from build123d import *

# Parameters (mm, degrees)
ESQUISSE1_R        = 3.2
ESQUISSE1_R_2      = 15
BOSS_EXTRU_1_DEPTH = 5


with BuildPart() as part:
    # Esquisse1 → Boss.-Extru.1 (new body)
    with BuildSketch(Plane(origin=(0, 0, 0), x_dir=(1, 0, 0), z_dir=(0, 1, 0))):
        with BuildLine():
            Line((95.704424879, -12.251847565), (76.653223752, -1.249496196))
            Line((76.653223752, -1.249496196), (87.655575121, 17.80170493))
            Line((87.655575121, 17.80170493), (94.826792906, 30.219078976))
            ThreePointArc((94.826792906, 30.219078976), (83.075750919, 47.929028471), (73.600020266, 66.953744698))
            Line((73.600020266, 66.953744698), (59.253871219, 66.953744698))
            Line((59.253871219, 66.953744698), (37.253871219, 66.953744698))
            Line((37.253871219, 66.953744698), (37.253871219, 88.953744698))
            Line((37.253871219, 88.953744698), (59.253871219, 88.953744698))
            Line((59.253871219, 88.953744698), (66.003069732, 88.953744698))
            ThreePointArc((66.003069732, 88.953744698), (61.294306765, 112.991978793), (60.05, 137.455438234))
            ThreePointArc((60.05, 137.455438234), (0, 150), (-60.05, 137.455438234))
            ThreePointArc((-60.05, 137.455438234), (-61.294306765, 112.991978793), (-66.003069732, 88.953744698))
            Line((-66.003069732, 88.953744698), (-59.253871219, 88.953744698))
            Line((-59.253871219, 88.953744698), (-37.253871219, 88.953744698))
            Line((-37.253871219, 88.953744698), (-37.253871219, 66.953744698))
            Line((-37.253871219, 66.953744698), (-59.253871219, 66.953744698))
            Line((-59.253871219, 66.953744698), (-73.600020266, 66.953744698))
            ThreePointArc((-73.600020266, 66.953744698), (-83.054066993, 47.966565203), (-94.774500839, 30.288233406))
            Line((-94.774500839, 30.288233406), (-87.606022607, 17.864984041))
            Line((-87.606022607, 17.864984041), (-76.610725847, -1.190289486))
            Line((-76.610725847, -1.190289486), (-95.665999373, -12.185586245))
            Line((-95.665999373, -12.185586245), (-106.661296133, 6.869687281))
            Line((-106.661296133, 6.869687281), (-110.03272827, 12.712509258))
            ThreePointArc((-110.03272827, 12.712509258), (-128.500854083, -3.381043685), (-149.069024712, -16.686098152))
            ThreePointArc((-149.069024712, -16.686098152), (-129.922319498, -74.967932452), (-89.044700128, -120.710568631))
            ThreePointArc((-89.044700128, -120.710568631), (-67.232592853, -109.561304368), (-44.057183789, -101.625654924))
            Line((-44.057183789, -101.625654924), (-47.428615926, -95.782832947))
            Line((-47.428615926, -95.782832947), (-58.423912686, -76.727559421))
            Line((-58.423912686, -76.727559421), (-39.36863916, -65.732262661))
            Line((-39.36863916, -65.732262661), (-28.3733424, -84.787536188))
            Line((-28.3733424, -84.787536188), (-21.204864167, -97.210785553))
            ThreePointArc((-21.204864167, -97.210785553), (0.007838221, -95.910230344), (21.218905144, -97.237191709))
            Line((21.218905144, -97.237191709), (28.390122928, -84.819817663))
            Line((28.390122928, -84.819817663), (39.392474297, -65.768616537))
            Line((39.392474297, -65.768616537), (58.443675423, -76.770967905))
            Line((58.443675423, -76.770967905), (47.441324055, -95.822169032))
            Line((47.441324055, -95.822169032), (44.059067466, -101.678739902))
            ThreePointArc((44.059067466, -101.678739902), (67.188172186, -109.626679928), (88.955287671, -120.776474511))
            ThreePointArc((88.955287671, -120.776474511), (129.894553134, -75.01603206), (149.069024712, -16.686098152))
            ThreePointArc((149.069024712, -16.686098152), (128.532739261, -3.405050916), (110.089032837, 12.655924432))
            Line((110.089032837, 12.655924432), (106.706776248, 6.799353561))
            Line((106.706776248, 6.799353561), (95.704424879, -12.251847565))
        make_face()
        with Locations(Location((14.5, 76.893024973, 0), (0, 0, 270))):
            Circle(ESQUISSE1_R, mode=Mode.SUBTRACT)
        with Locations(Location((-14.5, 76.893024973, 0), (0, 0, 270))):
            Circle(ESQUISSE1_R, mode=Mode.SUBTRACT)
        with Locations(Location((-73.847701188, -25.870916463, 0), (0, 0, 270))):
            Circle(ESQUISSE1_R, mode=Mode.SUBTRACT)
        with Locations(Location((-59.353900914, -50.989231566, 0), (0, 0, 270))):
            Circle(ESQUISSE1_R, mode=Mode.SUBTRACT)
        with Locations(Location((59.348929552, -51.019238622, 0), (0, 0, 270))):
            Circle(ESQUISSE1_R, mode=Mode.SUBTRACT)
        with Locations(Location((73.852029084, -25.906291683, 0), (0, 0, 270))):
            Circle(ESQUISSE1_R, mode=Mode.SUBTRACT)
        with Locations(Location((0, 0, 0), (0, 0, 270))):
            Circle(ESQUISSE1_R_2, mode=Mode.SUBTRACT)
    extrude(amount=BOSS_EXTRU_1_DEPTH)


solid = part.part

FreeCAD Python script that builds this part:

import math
import FreeCAD as App
import Part
import Sketcher

doc = App.newDocument("Part")
body = doc.addObject("PartDesign::Body", "Body")

# Sketch on XZ plane
sketch1 = doc.addObject("Sketcher::SketchObject", "Sketch")
body.addObject(sketch1)
sketch1.AttachmentSupport = (doc.XZ_Plane, [""])
sketch1.MapMode = "FlatFace"
sketch1.addGeometry([
    Part.LineSegment(App.Vector(95.704425, 12.251848, 0), App.Vector(76.653224, 1.249496, 0)),  # 0
    Part.LineSegment(App.Vector(76.653224, 1.249496, 0), App.Vector(87.655575, -17.801705, 0)),  # 1
    Part.LineSegment(App.Vector(87.655575, -17.801705, 0), App.Vector(94.826793, -30.219079, 0)),  # 2
    Part.ArcOfCircle(Part.Circle(App.Vector(231.913922, -133.933731, 0), App.Vector(0, 0, 1), 171.9), math.radians(142.890304), math.radians(157.067584)),  # 3
    Part.LineSegment(App.Vector(73.60002, -66.953745, 0), App.Vector(37.253871, -66.953745, 0)),  # 4
    Part.LineSegment(App.Vector(37.253871, -66.953745, 0), App.Vector(37.253871, -88.953745, 0)),  # 5
    Part.LineSegment(App.Vector(37.253871, -88.953745, 0), App.Vector(66.00307, -88.953745, 0)),  # 6
    Part.ArcOfCircle(Part.Circle(App.Vector(231.913922, -133.933731, 0), App.Vector(0, 0, 1), 171.9), math.radians(164.831198), math.radians(181.173898)),  # 7
    Part.ArcOfCircle(Part.Circle(App.Vector(0, 0, 0), App.Vector(0, 0, 1), 150), math.radians(-113.599018), math.radians(-66.400982)),  # 8
    Part.ArcOfCircle(Part.Circle(App.Vector(-231.913922, -133.933731, 0), App.Vector(0, 0, 1), 171.9), math.radians(-1.173898), math.radians(15.168802)),  # 9
    Part.LineSegment(App.Vector(-66.00307, -88.953745, 0), App.Vector(-37.253871, -88.953745, 0)),  # 10
    Part.LineSegment(App.Vector(-37.253871, -88.953745, 0), App.Vector(-37.253871, -66.953745, 0)),  # 11
    Part.LineSegment(App.Vector(-37.253871, -66.953745, 0), App.Vector(-73.60002, -66.953745, 0)),  # 12
    Part.ArcOfCircle(Part.Circle(App.Vector(-231.913922, -133.933731, 0), App.Vector(0, 0, 1), 171.9), math.radians(22.932416), math.radians(37.080798)),  # 13
    Part.LineSegment(App.Vector(-94.774501, -30.288233, 0), App.Vector(-87.606023, -17.864984, 0)),  # 14
    Part.LineSegment(App.Vector(-87.606023, -17.864984, 0), App.Vector(-76.610726, 1.190289, 0)),  # 15
    Part.LineSegment(App.Vector(-76.610726, 1.190289, 0), App.Vector(-95.665999, 12.185586, 0)),  # 16
    Part.LineSegment(App.Vector(-95.665999, 12.185586, 0), App.Vector(-106.661296, -6.869687, 0)),  # 17
    Part.LineSegment(App.Vector(-106.661296, -6.869687, 0), App.Vector(-110.032728, -12.712509, 0)),  # 18
    Part.ArcOfCircle(Part.Circle(App.Vector(-231.913922, -133.933731, 0), App.Vector(0, 0, 1), 171.9), math.radians(44.844455), math.radians(61.188041)),  # 19
    Part.ArcOfCircle(Part.Circle(App.Vector(0, 0, 0), App.Vector(0, 0, 1), 150), math.radians(126.415124), math.radians(173.613161)),  # 20
    Part.ArcOfCircle(Part.Circle(App.Vector(-0.099159, 267.810197, 0), App.Vector(0, 0, 1), 171.9), math.radians(-121.159755), math.radians(-104.816169)),  # 21
    Part.LineSegment(App.Vector(-44.057184, 101.625655, 0), App.Vector(-47.428616, 95.782833, 0)),  # 22
    Part.LineSegment(App.Vector(-47.428616, 95.782833, 0), App.Vector(-58.423913, 76.727559, 0)),  # 23
    Part.LineSegment(App.Vector(-58.423913, 76.727559, 0), App.Vector(-39.368639, 65.732263, 0)),  # 24
    Part.LineSegment(App.Vector(-39.368639, 65.732263, 0), App.Vector(-28.373342, 84.787536, 0)),  # 25
    Part.LineSegment(App.Vector(-28.373342, 84.787536, 0), App.Vector(-21.204864, 97.210786, 0)),  # 26
    Part.ArcOfCircle(Part.Circle(App.Vector(-0.099159, 267.810197, 0), App.Vector(0, 0, 1), 171.9), math.radians(-97.052512), math.radians(-82.876162)),  # 27
    Part.LineSegment(App.Vector(21.218905, 97.237192, 0), App.Vector(28.390123, 84.819818, 0)),  # 28
    Part.LineSegment(App.Vector(28.390123, 84.819818, 0), App.Vector(39.392474, 65.768617, 0)),  # 29
    Part.LineSegment(App.Vector(39.392474, 65.768617, 0), App.Vector(58.443675, 76.770968, 0)),  # 30
    Part.LineSegment(App.Vector(58.443675, 76.770968, 0), App.Vector(47.441324, 95.822169, 0)),  # 31
    Part.LineSegment(App.Vector(47.441324, 95.822169, 0), App.Vector(44.059067, 101.67874, 0)),  # 32
    Part.ArcOfCircle(Part.Circle(App.Vector(-0.099159, 267.810197, 0), App.Vector(0, 0, 1), 171.9), math.radians(-75.114796), math.radians(-58.797816)),  # 33
    Part.ArcOfCircle(Part.Circle(App.Vector(0, 0, 0), App.Vector(0, 0, 1), 150), math.radians(6.386839), math.radians(53.627304)),  # 34
    Part.ArcOfCircle(Part.Circle(App.Vector(231.913922, -133.933731, 0), App.Vector(0, 0, 1), 171.9), math.radians(118.811959), math.radians(135.128939)),  # 35
    Part.LineSegment(App.Vector(110.089033, -12.655924, 0), App.Vector(106.706776, -6.799354, 0)),  # 36
    Part.LineSegment(App.Vector(106.706776, -6.799354, 0), App.Vector(95.704425, 12.251848, 0)),  # 37
    Part.Circle(App.Vector(-59.353901, 50.989232, 0), App.Vector(0, 0, 1), 3.2),  # 38
    Part.Circle(App.Vector(-73.847701, 25.870916, 0), App.Vector(0, 0, 1), 3.2),  # 39
    Part.Circle(App.Vector(0, 0, 0), App.Vector(0, 0, 1), 15),  # 40
    Part.Circle(App.Vector(59.34893, 51.019239, 0), App.Vector(0, 0, 1), 3.2),  # 41
    Part.Circle(App.Vector(73.852029, 25.906292, 0), App.Vector(0, 0, 1), 3.2),  # 42
    Part.Circle(App.Vector(-14.5, -76.893025, 0), App.Vector(0, 0, 1), 3.2),  # 43
    Part.Circle(App.Vector(14.5, -76.893025, 0), App.Vector(0, 0, 1), 3.2),  # 44
], False)
sketch1.addConstraint([
    Sketcher.Constraint("Coincident", 0, 2, 1, 1),
    Sketcher.Constraint("Coincident", 1, 2, 2, 1),
    Sketcher.Constraint("Coincident", 2, 2, 3, 1),
    Sketcher.Constraint("Coincident", 3, 2, 4, 1),
    Sketcher.Constraint("Coincident", 4, 2, 5, 1),
    Sketcher.Constraint("Coincident", 5, 2, 6, 1),
    Sketcher.Constraint("Coincident", 6, 2, 7, 1),
    Sketcher.Constraint("Coincident", 7, 2, 8, 2),
    Sketcher.Constraint("Coincident", 8, 1, 9, 1),
    Sketcher.Constraint("Coincident", 9, 2, 10, 1),
    Sketcher.Constraint("Coincident", 10, 2, 11, 1),
    Sketcher.Constraint("Coincident", 11, 2, 12, 1),
    Sketcher.Constraint("Coincident", 12, 2, 13, 1),
    Sketcher.Constraint("Coincident", 13, 2, 14, 1),
    Sketcher.Constraint("Coincident", 14, 2, 15, 1),
    Sketcher.Constraint("Coincident", 15, 2, 16, 1),
    Sketcher.Constraint("Coincident", 16, 2, 17, 1),
    Sketcher.Constraint("Coincident", 17, 2, 18, 1),
    Sketcher.Constraint("Coincident", 18, 2, 19, 1),
    Sketcher.Constraint("Coincident", 19, 2, 20, 2),
    Sketcher.Constraint("Coincident", 20, 1, 21, 1),
    Sketcher.Constraint("Coincident", 21, 2, 22, 1),
    Sketcher.Constraint("Coincident", 22, 2, 23, 1),
    Sketcher.Constraint("Coincident", 23, 2, 24, 1),
    Sketcher.Constraint("Coincident", 24, 2, 25, 1),
    Sketcher.Constraint("Coincident", 25, 2, 26, 1),
    Sketcher.Constraint("Coincident", 26, 2, 27, 1),
    Sketcher.Constraint("Coincident", 27, 2, 28, 1),
    Sketcher.Constraint("Coincident", 28, 2, 29, 1),
    Sketcher.Constraint("Coincident", 29, 2, 30, 1),
    Sketcher.Constraint("Coincident", 30, 2, 31, 1),
    Sketcher.Constraint("Coincident", 31, 2, 32, 1),
    Sketcher.Constraint("Coincident", 32, 2, 33, 1),
    Sketcher.Constraint("Coincident", 33, 2, 34, 2),
    Sketcher.Constraint("Coincident", 34, 1, 35, 1),
    Sketcher.Constraint("Coincident", 35, 2, 36, 1),
    Sketcher.Constraint("Coincident", 36, 2, 37, 1),
    Sketcher.Constraint("Coincident", 37, 2, 0, 1),
    Sketcher.Constraint("Horizontal", 4),
    Sketcher.Constraint("Vertical", 5),
    Sketcher.Constraint("Horizontal", 6),
    Sketcher.Constraint("Horizontal", 10),
    Sketcher.Constraint("Vertical", 11),
    Sketcher.Constraint("Horizontal", 12),
    Sketcher.Constraint("Coincident", 8, 3, -1, 1),
    Sketcher.Constraint("Coincident", 20, 3, -1, 1),
    Sketcher.Constraint("Coincident", 34, 3, -1, 1),
    Sketcher.Constraint("Coincident", 40, 3, -1, 1),
    Sketcher.Constraint("Coincident", 7, 3, 3, 3),
    Sketcher.Constraint("Coincident", 13, 3, 9, 3),
    Sketcher.Constraint("Coincident", 19, 3, 9, 3),
    Sketcher.Constraint("Coincident", 27, 3, 21, 3),
    Sketcher.Constraint("Coincident", 33, 3, 21, 3),
    Sketcher.Constraint("Coincident", 35, 3, 3, 3),
    Sketcher.Constraint("Diameter", 40, 30.0),
    Sketcher.Constraint("Radius", 8, 150.0),
    Sketcher.Constraint("Radius", 20, 150.0),
    Sketcher.Constraint("Radius", 34, 150.0),
    Sketcher.Constraint("Diameter", 38, 6.4),
    Sketcher.Constraint("Diameter", 39, 6.4),
    Sketcher.Constraint("Diameter", 41, 6.4),
    Sketcher.Constraint("Diameter", 42, 6.4),
    Sketcher.Constraint("Diameter", 43, 6.4),
    Sketcher.Constraint("Diameter", 44, 6.4),
    Sketcher.Constraint("Radius", 3, 171.9),
    Sketcher.Constraint("Radius", 7, 171.9),
    Sketcher.Constraint("Radius", 9, 171.9),
    Sketcher.Constraint("Radius", 13, 171.9),
    Sketcher.Constraint("Radius", 19, 171.9),
    Sketcher.Constraint("Radius", 21, 171.9),
    Sketcher.Constraint("Radius", 27, 171.9),
    Sketcher.Constraint("Radius", 33, 171.9),
    Sketcher.Constraint("Radius", 35, 171.9),
    Sketcher.Constraint("DistanceY", 5, 2, 5, 1, 22.0),
    Sketcher.Constraint("DistanceY", 11, 1, 11, 2, 22.0),
    Sketcher.Constraint("Distance", 0, 22.0),
    Sketcher.Constraint("Distance", 1, 22.0),
    Sketcher.Constraint("Distance", 15, 22.0),
    Sketcher.Constraint("Distance", 16, 22.0),
    Sketcher.Constraint("Distance", 17, 22.0),
    Sketcher.Constraint("Distance", 23, 22.0),
    Sketcher.Constraint("Distance", 24, 22.0),
    Sketcher.Constraint("Distance", 25, 22.0),
    Sketcher.Constraint("Distance", 29, 22.0),
    Sketcher.Constraint("Distance", 30, 22.0),
    Sketcher.Constraint("Distance", 31, 22.0),
    Sketcher.Constraint("Distance", 37, 22.0),
    Sketcher.Constraint("DistanceX", 43, 3, 44, 3, 29.0),
    Sketcher.Constraint("DistanceY", 9, 2, 4, 2, 22.0),
    Sketcher.Constraint("DistanceX", 43, 3, -1, 1, 14.5),
    Sketcher.Constraint("DistanceX", 8, 1, 7, 2, 120.1),
    Sketcher.Constraint("DistanceX", -1, 1, 7, 2, 60.05),
    Sketcher.Constraint("DistanceX", 6, 1, 6, 2, 28.749199),
    Sketcher.Constraint("DistanceX", 10, 1, 10, 2, 28.749199),
    Sketcher.Constraint("DistanceX", 16, 2, -1, 1, 95.665999),
    Sketcher.Constraint("DistanceX", 20, 1, 39, 3, 15.196999),
    Sketcher.Constraint("DistanceX", 4, 2, 4, 1, 36.346149),
    Sketcher.Constraint("DistanceX", 12, 2, 12, 1, 36.346149),
    Sketcher.Constraint("DistanceX", 38, 3, -1, 1, 59.353901),
    Sketcher.Constraint("DistanceX", 39, 3, -1, 1, 73.847701),
    Sketcher.Constraint("DistanceX", 13, 2, -1, 1, 94.774501),
    Sketcher.Constraint("DistanceY", -1, 1, 19, 2, 16.686098),
    Sketcher.Constraint("DistanceX", 41, 3, 42, 3, 14.5031),
    Sketcher.Constraint("DistanceY", 1, 2, 0, 2, 19.051201),
    Sketcher.Constraint("DistanceY", 14, 2, 39, 3, 43.735901),
    Sketcher.Constraint("DistanceY", 18, 2, 15, 2, 13.902799),
    Sketcher.Constraint("DistanceY", 38, 3, 22, 2, 44.793601),
    Sketcher.Constraint("DistanceY", 29, 2, 28, 2, 19.051201),
    Sketcher.Constraint("DistanceX", 29, 2, 30, 2, 19.051201),
    Sketcher.Constraint("DistanceY", 30, 2, 31, 2, 19.051201),
    Sketcher.Constraint("DistanceX", 0, 2, 34, 1, 72.415801),
    Sketcher.Constraint("DistanceY", 0, 2, 34, 1, 15.436602),
    Sketcher.Constraint("DistanceX", 1, 2, 36, 2, 19.051201),
    Sketcher.Constraint("DistanceY", 36, 2, 37, 2, 19.051201),
    Sketcher.Constraint("Distance", 2, 14.33937),
    Sketcher.Constraint("Distance", 14, 14.343089),
    Sketcher.Constraint("Distance", 18, 6.745749),
    Sketcher.Constraint("Distance", 22, 6.745749),
    Sketcher.Constraint("Distance", 26, 14.343089),
    Sketcher.Constraint("Distance", 28, 14.33937),
    Sketcher.Constraint("DistanceX", 21, 3, -1, 1, 0.099159),
    Sketcher.Constraint("DistanceY", -1, 1, 38, 3, 50.989232),
    Sketcher.Constraint("DistanceX", -1, 1, 41, 3, 59.34893),
    Sketcher.Constraint("DistanceY", -1, 1, 41, 3, 51.019239),
    Sketcher.Constraint("DistanceY", -1, 1, 42, 3, 25.906292),
    Sketcher.Constraint("DistanceY", -1, 1, 23, 2, 76.727559),
    Sketcher.Constraint("DistanceX", 24, 2, -1, 1, 39.368639),
    Sketcher.Constraint("DistanceY", -1, 1, 27, 2, 97.237192),
    Sketcher.Constraint("DistanceY", -1, 1, 31, 2, 95.822169),
    Sketcher.Constraint("DistanceY", -1, 1, 32, 2, 101.67874),
    Sketcher.Constraint("DistanceY", 43, 3, 39, 3, 102.763941),
    Sketcher.Constraint("DistanceY", 44, 3, 3, 2, 9.93928),
    Sketcher.Constraint("DistanceY", 43, 3, 4, 2, 9.93928),
    Sketcher.Constraint("DistanceX", 17, 2, 15, 2, 30.05057),
    Sketcher.Constraint("DistanceX", 38, 3, 23, 2, 0.929988),
    Sketcher.Constraint("DistanceX", 21, 2, 25, 2, 15.683841),
    Sketcher.Constraint("DistanceY", 1, 2, 35, 2, 5.14578),
])
pad1 = doc.addObject("PartDesign::Pad", "Pad")
body.addObject(pad1)
pad1.Profile = sketch1
pad1.Length = 5
pad1.Reversed = True

doc.recompute()
